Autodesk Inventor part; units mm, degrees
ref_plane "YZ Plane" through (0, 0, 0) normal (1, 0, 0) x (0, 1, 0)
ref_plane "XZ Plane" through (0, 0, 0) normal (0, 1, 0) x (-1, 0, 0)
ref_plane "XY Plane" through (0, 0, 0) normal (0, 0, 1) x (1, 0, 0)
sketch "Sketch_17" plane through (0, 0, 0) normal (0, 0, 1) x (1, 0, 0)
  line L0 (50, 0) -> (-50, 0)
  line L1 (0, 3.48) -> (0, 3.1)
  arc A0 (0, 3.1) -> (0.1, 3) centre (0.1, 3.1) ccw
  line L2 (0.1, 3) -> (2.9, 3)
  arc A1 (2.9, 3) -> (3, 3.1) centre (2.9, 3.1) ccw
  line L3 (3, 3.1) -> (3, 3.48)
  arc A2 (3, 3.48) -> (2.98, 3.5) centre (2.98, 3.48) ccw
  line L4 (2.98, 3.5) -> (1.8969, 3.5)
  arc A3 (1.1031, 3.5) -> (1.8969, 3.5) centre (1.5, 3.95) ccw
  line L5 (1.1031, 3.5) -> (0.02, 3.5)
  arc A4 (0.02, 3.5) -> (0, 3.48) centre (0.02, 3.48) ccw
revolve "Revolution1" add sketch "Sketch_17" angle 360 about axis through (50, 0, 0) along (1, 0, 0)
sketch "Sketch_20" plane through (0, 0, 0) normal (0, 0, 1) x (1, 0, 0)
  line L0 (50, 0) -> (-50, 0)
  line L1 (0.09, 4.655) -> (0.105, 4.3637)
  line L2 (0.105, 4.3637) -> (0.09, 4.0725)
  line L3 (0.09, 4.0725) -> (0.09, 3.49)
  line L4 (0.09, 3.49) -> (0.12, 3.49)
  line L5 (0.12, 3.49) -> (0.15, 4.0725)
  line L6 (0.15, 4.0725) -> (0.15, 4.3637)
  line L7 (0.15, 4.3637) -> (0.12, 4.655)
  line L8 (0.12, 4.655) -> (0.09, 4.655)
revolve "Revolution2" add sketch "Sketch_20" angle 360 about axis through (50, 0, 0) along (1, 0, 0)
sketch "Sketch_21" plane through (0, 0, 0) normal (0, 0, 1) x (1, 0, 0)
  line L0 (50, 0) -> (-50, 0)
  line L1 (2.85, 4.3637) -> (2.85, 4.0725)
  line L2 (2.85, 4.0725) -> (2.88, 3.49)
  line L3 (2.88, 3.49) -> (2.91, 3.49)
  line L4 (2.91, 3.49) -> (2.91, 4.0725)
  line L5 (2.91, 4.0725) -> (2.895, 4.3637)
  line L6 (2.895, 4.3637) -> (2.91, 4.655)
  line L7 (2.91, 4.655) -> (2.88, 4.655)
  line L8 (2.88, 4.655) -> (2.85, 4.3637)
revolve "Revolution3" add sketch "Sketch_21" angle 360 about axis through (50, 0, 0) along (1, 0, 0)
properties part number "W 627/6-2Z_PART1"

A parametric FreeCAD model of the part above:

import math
import FreeCAD as App
import Part
import Sketcher

V = App.Vector
Q = App.Units.Quantity


def add_polygon(sketch, points):
    """Adds a closed chain of lines whose ends are joined by coincident constraints."""
    first, n = sketch.GeometryCount, len(points)
    for a, b in zip(points, points[1:] + points[:1]):
        sketch.addGeometry(Part.LineSegment(App.Vector(*a, 0), App.Vector(*b, 0)), False)
    for i in range(n):
        sketch.addConstraint(Sketcher.Constraint("Coincident", first + i, 2, first + (i + 1) % n, 1))

doc = App.newDocument("Part")
body = doc.addObject("PartDesign::Body", "Body")

# Sketch on XY plane
sketch1 = body.newObject("Sketcher::SketchObject", "Sketch")
sketch1.AttachmentSupport = (doc.getObject("XY_Plane"), [""])
sketch1.MapMode = "FlatFace"
sketch1.addGeometry([
    Part.ArcOfCircle(Part.Circle(V(0.02, 3.48, 0), V(0, 0, 1), 0.02), math.radians(90), math.radians(180)),  # 0
    Part.LineSegment(V(0, 3.48, 0), V(0, 3.1, 0)),  # 1
    Part.ArcOfCircle(Part.Circle(V(0.1, 3.1, 0), V(0, 0, 1), 0.1), math.radians(180), math.radians(270)),  # 2
    Part.LineSegment(V(0.1, 3, 0), V(2.9, 3, 0)),  # 3
    Part.ArcOfCircle(Part.Circle(V(2.9, 3.1, 0), V(0, 0, 1), 0.1), math.radians(-90), math.radians(0)),  # 4
    Part.LineSegment(V(3, 3.1, 0), V(3, 3.48, 0)),  # 5
    Part.ArcOfCircle(Part.Circle(V(2.98, 3.48, 0), V(0, 0, 1), 0.02), math.radians(0), math.radians(90)),  # 6
    Part.LineSegment(V(2.98, 3.5, 0), V(1.8969, 3.5, 0)),  # 7
    Part.ArcOfCircle(Part.Circle(V(1.5, 3.95, 0), V(0, 0, 1), 0.600025), math.radians(-131.412294), math.radians(-48.587706)),  # 8
    Part.LineSegment(V(1.1031, 3.5, 0), V(0.02, 3.5, 0)),  # 9
], False)
sketch1.addConstraint([
    Sketcher.Constraint("Tangent", 0, 2, 1, 1),
    Sketcher.Constraint("Tangent", 1, 2, 2, 1),
    Sketcher.Constraint("Tangent", 2, 2, 3, 1),
    Sketcher.Constraint("Tangent", 3, 2, 4, 1),
    Sketcher.Constraint("Tangent", 4, 2, 5, 1),
    Sketcher.Constraint("Tangent", 5, 2, 6, 1),
    Sketcher.Constraint("Tangent", 6, 2, 7, 1),
    Sketcher.Constraint("Coincident", 7, 2, 8, 2),
    Sketcher.Constraint("Coincident", 8, 1, 9, 1),
    Sketcher.Constraint("Tangent", 9, 2, 0, 1),
    Sketcher.Constraint("Vertical", 1),
    Sketcher.Constraint("Horizontal", 3),
    Sketcher.Constraint("Vertical", 5),
    Sketcher.Constraint("Horizontal", 7),
    Sketcher.Constraint("Horizontal", 9),
    Sketcher.Constraint("Equal", 2, 4),
    Sketcher.Constraint("Equal", 0, 6),
    Sketcher.Constraint("PointOnObject", 0, 2, -2),
    Sketcher.Constraint("Horizontal", 0, 3, 6, 3),
    Sketcher.Constraint("Equal", 7, 9),
    Sketcher.Constraint("Radius", 2, 0.1),
    Sketcher.Constraint("Radius", 8, 0.6),
    Sketcher.Constraint("Radius", 0, 0.02),
    Sketcher.Constraint("DistanceX", 3, 1, 3, 2, 2.8),
    Sketcher.Constraint("DistanceY", -1, 1, 2, 2, 3.0),
    Sketcher.Constraint("DistanceY", 1, 2, 1, 1, 0.38),
    Sketcher.Constraint("DistanceX", 7, 2, 7, 1, 1.083),
])
revolution = body.newObject("PartDesign::Revolution", "Revolution")
revolution.Profile = sketch1
revolution.ReferenceAxis = (sketch1, ["H_Axis"])
revolution.Angle = 360

# Sketch on XY plane
sketch2 = body.newObject("Sketcher::SketchObject", "Sketch001")
sketch2.AttachmentSupport = (doc.getObject("XY_Plane"), [""])
sketch2.MapMode = "FlatFace"
add_polygon(sketch2, [(0.12, 4.655), (0.09, 4.655), (0.105, 4.3637), (0.09, 4.0725), (0.09, 3.49), (0.12, 3.49), (0.15, 4.0725), (0.15, 4.3637)])  # lines 0-7
sketch2.addConstraint([
    Sketcher.Constraint("Horizontal", 0),
    Sketcher.Constraint("Vertical", 3),
    Sketcher.Constraint("Horizontal", 4),
    Sketcher.Constraint("Vertical", 6),
    Sketcher.Constraint("Parallel", 2, 5),
    Sketcher.Constraint("Horizontal", 2, 2, 5, 2),
    Sketcher.Constraint("Horizontal", 1, 2, 6, 2),
    Sketcher.Constraint("Vertical", 0, 2, 2, 2),
    Sketcher.Constraint("Vertical", 4, 2, 7, 2),
    Sketcher.Constraint("Equal", 1, 2),
    Sketcher.Constraint("DistanceX", 0, 2, 0, 1, 0.03),
    Sketcher.Constraint("Angle", 7, Q("95.88 deg")),
    Sketcher.Constraint("DistanceX", -1, 1, 0, 2, 0.09),
    Sketcher.Constraint("DistanceY", -1, 1, 3, 2, 3.49),
    Sketcher.Constraint("DistanceX", -1, 1, 5, 2, 0.15),
    Sketcher.Constraint("DistanceY", 3, 2, 3, 1, 0.5825),
])
revolution2 = body.newObject("PartDesign::Revolution", "Revolution001")
revolution2.Profile = sketch2
revolution2.ReferenceAxis = (sketch2, ["H_Axis"])
revolution2.Angle = 360

# Sketch on XY plane
sketch3 = body.newObject("Sketcher::SketchObject", "Sketch002")
sketch3.AttachmentSupport = (doc.getObject("XY_Plane"), [""])
sketch3.MapMode = "FlatFace"
add_polygon(sketch3, [(2.88, 4.655), (2.85, 4.3637), (2.85, 4.0725), (2.88, 3.49), (2.91, 3.49), (2.91, 4.0725), (2.895, 4.3637), (2.91, 4.655)])  # lines 0-7
sketch3.addConstraint([
    Sketcher.Constraint("Vertical", 1),
    Sketcher.Constraint("Horizontal", 3),
    Sketcher.Constraint("Vertical", 4),
    Sketcher.Constraint("Horizontal", 7),
    Sketcher.Constraint("Parallel", 2, 5),
    Sketcher.Constraint("Horizontal", 1, 2, 4, 2),
    Sketcher.Constraint("Horizontal", 0, 2, 5, 2),
    Sketcher.Constraint("Vertical", 4, 2, 6, 2),
    Sketcher.Constraint("Vertical", 2, 2, 7, 2),
    Sketcher.Constraint("Equal", 5, 6),
    Sketcher.Constraint("DistanceX", 3, 1, 3, 2, 0.03),
    Sketcher.Constraint("Angle", 0, Q("-95.88 deg")),
    Sketcher.Constraint("DistanceX", -1, 1, 0, 2, 2.85),
    Sketcher.Constraint("DistanceX", -1, 1, 2, 2, 2.88),
    Sketcher.Constraint("DistanceY", -1, 1, 2, 2, 3.49),
    Sketcher.Constraint("DistanceY", 4, 1, 4, 2, 0.5825),
])
revolution3 = body.newObject("PartDesign::Revolution", "Revolution002")
revolution3.Profile = sketch3
revolution3.ReferenceAxis = (sketch3, ["H_Axis"])
revolution3.Angle = 360

doc.recompute()
